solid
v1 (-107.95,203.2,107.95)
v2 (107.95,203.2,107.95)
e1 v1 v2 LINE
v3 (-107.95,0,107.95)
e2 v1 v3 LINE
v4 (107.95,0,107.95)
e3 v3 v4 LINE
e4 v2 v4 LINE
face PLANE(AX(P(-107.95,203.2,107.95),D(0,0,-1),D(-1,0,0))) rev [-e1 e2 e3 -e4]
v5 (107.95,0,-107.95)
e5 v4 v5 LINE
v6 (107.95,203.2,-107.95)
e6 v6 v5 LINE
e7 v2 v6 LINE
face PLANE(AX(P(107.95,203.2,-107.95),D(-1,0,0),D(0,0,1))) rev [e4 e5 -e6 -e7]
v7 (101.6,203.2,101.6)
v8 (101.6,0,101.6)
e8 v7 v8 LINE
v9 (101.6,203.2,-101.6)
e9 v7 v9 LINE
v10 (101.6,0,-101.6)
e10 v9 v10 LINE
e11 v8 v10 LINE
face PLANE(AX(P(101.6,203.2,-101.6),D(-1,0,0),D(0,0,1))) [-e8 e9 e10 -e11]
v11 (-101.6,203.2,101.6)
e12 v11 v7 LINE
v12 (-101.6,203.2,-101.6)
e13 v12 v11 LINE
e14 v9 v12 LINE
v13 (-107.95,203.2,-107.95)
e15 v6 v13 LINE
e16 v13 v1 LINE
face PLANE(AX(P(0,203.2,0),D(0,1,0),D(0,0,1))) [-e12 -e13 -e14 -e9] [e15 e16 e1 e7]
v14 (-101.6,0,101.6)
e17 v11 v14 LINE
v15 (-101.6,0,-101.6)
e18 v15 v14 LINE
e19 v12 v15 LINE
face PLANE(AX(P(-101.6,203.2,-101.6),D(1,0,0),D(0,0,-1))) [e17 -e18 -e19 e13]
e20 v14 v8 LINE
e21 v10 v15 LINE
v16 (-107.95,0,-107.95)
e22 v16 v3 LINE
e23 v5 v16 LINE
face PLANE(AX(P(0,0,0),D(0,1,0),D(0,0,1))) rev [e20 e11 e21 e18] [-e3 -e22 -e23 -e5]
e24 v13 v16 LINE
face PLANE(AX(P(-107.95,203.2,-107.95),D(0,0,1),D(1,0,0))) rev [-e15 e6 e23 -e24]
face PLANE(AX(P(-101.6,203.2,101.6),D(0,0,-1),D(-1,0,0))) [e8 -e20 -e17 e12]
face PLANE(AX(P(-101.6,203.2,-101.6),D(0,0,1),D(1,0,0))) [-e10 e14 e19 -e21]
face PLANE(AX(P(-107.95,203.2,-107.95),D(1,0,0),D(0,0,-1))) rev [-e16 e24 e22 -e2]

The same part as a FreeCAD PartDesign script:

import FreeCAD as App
import Part
import Sketcher
Q = App.Units.Quantity

doc = App.newDocument("Part")
body = doc.addObject("PartDesign::Body", "Body")

sketch1 = body.newObject("Sketcher::SketchObject", "Sketch")
sketch1.AttachmentSupport = (doc.getObject("XZ_Plane"), [""])
sketch1.MapMode = "FlatFace"
sketch1.addGeometry([
    Part.LineSegment(App.Vector(-108, -108, 0), App.Vector(-108, 108, 0)),
    Part.LineSegment(App.Vector(-108, 108, 0), App.Vector(108, 108, 0)),
    Part.LineSegment(App.Vector(108, 108, 0), App.Vector(108, -108, 0)),
    Part.LineSegment(App.Vector(108, -108, 0), App.Vector(-108, -108, 0)),
    Part.LineSegment(App.Vector(102, 102, 0), App.Vector(-102, 102, 0)),
    Part.LineSegment(App.Vector(-102, 102, 0), App.Vector(-102, -102, 0)),
    Part.LineSegment(App.Vector(-102, -102, 0), App.Vector(102, -102, 0)),
    Part.LineSegment(App.Vector(102, -102, 0), App.Vector(102, 102, 0)),
], False)
sketch1.addConstraint([
    Sketcher.Constraint("Coincident", 0, 2, 1, 1),
    Sketcher.Constraint("Coincident", 1, 2, 2, 1),
    Sketcher.Constraint("Coincident", 2, 2, 3, 1),
    Sketcher.Constraint("Coincident", 3, 2, 0, 1),
    Sketcher.Constraint("Coincident", 4, 2, 5, 1),
    Sketcher.Constraint("Coincident", 5, 2, 6, 1),
    Sketcher.Constraint("Coincident", 6, 2, 7, 1),
    Sketcher.Constraint("Coincident", 7, 2, 4, 1),
    Sketcher.Constraint("Vertical", 0),
    Sketcher.Constraint("Horizontal", 1),
    Sketcher.Constraint("Vertical", 2),
    Sketcher.Constraint("Horizontal", 3),
    Sketcher.Constraint("Horizontal", 4),
    Sketcher.Constraint("Vertical", 5),
    Sketcher.Constraint("Horizontal", 6),
    Sketcher.Constraint("Vertical", 7),
    Sketcher.Constraint("Symmetric", 0, 2, 2, 2, -1, 1),
    Sketcher.Constraint("Symmetric", 4, 2, 6, 2, -1, 1),
    Sketcher.Constraint("Equal", 3, 0),
    Sketcher.Constraint("Equal", 6, 5),
    Sketcher.Constraint("DistanceX", 4, 2, 4, 1, Q("8 in")),
    Sketcher.Constraint("DistanceX", 1, 1, 1, 2, Q("8.5 in")),
])
pad1 = body.newObject("PartDesign::Pad", "Pad")
pad1.Profile = sketch1
pad1.Length = Q("8 in")
pad1.Reversed = True

doc.recompute()
